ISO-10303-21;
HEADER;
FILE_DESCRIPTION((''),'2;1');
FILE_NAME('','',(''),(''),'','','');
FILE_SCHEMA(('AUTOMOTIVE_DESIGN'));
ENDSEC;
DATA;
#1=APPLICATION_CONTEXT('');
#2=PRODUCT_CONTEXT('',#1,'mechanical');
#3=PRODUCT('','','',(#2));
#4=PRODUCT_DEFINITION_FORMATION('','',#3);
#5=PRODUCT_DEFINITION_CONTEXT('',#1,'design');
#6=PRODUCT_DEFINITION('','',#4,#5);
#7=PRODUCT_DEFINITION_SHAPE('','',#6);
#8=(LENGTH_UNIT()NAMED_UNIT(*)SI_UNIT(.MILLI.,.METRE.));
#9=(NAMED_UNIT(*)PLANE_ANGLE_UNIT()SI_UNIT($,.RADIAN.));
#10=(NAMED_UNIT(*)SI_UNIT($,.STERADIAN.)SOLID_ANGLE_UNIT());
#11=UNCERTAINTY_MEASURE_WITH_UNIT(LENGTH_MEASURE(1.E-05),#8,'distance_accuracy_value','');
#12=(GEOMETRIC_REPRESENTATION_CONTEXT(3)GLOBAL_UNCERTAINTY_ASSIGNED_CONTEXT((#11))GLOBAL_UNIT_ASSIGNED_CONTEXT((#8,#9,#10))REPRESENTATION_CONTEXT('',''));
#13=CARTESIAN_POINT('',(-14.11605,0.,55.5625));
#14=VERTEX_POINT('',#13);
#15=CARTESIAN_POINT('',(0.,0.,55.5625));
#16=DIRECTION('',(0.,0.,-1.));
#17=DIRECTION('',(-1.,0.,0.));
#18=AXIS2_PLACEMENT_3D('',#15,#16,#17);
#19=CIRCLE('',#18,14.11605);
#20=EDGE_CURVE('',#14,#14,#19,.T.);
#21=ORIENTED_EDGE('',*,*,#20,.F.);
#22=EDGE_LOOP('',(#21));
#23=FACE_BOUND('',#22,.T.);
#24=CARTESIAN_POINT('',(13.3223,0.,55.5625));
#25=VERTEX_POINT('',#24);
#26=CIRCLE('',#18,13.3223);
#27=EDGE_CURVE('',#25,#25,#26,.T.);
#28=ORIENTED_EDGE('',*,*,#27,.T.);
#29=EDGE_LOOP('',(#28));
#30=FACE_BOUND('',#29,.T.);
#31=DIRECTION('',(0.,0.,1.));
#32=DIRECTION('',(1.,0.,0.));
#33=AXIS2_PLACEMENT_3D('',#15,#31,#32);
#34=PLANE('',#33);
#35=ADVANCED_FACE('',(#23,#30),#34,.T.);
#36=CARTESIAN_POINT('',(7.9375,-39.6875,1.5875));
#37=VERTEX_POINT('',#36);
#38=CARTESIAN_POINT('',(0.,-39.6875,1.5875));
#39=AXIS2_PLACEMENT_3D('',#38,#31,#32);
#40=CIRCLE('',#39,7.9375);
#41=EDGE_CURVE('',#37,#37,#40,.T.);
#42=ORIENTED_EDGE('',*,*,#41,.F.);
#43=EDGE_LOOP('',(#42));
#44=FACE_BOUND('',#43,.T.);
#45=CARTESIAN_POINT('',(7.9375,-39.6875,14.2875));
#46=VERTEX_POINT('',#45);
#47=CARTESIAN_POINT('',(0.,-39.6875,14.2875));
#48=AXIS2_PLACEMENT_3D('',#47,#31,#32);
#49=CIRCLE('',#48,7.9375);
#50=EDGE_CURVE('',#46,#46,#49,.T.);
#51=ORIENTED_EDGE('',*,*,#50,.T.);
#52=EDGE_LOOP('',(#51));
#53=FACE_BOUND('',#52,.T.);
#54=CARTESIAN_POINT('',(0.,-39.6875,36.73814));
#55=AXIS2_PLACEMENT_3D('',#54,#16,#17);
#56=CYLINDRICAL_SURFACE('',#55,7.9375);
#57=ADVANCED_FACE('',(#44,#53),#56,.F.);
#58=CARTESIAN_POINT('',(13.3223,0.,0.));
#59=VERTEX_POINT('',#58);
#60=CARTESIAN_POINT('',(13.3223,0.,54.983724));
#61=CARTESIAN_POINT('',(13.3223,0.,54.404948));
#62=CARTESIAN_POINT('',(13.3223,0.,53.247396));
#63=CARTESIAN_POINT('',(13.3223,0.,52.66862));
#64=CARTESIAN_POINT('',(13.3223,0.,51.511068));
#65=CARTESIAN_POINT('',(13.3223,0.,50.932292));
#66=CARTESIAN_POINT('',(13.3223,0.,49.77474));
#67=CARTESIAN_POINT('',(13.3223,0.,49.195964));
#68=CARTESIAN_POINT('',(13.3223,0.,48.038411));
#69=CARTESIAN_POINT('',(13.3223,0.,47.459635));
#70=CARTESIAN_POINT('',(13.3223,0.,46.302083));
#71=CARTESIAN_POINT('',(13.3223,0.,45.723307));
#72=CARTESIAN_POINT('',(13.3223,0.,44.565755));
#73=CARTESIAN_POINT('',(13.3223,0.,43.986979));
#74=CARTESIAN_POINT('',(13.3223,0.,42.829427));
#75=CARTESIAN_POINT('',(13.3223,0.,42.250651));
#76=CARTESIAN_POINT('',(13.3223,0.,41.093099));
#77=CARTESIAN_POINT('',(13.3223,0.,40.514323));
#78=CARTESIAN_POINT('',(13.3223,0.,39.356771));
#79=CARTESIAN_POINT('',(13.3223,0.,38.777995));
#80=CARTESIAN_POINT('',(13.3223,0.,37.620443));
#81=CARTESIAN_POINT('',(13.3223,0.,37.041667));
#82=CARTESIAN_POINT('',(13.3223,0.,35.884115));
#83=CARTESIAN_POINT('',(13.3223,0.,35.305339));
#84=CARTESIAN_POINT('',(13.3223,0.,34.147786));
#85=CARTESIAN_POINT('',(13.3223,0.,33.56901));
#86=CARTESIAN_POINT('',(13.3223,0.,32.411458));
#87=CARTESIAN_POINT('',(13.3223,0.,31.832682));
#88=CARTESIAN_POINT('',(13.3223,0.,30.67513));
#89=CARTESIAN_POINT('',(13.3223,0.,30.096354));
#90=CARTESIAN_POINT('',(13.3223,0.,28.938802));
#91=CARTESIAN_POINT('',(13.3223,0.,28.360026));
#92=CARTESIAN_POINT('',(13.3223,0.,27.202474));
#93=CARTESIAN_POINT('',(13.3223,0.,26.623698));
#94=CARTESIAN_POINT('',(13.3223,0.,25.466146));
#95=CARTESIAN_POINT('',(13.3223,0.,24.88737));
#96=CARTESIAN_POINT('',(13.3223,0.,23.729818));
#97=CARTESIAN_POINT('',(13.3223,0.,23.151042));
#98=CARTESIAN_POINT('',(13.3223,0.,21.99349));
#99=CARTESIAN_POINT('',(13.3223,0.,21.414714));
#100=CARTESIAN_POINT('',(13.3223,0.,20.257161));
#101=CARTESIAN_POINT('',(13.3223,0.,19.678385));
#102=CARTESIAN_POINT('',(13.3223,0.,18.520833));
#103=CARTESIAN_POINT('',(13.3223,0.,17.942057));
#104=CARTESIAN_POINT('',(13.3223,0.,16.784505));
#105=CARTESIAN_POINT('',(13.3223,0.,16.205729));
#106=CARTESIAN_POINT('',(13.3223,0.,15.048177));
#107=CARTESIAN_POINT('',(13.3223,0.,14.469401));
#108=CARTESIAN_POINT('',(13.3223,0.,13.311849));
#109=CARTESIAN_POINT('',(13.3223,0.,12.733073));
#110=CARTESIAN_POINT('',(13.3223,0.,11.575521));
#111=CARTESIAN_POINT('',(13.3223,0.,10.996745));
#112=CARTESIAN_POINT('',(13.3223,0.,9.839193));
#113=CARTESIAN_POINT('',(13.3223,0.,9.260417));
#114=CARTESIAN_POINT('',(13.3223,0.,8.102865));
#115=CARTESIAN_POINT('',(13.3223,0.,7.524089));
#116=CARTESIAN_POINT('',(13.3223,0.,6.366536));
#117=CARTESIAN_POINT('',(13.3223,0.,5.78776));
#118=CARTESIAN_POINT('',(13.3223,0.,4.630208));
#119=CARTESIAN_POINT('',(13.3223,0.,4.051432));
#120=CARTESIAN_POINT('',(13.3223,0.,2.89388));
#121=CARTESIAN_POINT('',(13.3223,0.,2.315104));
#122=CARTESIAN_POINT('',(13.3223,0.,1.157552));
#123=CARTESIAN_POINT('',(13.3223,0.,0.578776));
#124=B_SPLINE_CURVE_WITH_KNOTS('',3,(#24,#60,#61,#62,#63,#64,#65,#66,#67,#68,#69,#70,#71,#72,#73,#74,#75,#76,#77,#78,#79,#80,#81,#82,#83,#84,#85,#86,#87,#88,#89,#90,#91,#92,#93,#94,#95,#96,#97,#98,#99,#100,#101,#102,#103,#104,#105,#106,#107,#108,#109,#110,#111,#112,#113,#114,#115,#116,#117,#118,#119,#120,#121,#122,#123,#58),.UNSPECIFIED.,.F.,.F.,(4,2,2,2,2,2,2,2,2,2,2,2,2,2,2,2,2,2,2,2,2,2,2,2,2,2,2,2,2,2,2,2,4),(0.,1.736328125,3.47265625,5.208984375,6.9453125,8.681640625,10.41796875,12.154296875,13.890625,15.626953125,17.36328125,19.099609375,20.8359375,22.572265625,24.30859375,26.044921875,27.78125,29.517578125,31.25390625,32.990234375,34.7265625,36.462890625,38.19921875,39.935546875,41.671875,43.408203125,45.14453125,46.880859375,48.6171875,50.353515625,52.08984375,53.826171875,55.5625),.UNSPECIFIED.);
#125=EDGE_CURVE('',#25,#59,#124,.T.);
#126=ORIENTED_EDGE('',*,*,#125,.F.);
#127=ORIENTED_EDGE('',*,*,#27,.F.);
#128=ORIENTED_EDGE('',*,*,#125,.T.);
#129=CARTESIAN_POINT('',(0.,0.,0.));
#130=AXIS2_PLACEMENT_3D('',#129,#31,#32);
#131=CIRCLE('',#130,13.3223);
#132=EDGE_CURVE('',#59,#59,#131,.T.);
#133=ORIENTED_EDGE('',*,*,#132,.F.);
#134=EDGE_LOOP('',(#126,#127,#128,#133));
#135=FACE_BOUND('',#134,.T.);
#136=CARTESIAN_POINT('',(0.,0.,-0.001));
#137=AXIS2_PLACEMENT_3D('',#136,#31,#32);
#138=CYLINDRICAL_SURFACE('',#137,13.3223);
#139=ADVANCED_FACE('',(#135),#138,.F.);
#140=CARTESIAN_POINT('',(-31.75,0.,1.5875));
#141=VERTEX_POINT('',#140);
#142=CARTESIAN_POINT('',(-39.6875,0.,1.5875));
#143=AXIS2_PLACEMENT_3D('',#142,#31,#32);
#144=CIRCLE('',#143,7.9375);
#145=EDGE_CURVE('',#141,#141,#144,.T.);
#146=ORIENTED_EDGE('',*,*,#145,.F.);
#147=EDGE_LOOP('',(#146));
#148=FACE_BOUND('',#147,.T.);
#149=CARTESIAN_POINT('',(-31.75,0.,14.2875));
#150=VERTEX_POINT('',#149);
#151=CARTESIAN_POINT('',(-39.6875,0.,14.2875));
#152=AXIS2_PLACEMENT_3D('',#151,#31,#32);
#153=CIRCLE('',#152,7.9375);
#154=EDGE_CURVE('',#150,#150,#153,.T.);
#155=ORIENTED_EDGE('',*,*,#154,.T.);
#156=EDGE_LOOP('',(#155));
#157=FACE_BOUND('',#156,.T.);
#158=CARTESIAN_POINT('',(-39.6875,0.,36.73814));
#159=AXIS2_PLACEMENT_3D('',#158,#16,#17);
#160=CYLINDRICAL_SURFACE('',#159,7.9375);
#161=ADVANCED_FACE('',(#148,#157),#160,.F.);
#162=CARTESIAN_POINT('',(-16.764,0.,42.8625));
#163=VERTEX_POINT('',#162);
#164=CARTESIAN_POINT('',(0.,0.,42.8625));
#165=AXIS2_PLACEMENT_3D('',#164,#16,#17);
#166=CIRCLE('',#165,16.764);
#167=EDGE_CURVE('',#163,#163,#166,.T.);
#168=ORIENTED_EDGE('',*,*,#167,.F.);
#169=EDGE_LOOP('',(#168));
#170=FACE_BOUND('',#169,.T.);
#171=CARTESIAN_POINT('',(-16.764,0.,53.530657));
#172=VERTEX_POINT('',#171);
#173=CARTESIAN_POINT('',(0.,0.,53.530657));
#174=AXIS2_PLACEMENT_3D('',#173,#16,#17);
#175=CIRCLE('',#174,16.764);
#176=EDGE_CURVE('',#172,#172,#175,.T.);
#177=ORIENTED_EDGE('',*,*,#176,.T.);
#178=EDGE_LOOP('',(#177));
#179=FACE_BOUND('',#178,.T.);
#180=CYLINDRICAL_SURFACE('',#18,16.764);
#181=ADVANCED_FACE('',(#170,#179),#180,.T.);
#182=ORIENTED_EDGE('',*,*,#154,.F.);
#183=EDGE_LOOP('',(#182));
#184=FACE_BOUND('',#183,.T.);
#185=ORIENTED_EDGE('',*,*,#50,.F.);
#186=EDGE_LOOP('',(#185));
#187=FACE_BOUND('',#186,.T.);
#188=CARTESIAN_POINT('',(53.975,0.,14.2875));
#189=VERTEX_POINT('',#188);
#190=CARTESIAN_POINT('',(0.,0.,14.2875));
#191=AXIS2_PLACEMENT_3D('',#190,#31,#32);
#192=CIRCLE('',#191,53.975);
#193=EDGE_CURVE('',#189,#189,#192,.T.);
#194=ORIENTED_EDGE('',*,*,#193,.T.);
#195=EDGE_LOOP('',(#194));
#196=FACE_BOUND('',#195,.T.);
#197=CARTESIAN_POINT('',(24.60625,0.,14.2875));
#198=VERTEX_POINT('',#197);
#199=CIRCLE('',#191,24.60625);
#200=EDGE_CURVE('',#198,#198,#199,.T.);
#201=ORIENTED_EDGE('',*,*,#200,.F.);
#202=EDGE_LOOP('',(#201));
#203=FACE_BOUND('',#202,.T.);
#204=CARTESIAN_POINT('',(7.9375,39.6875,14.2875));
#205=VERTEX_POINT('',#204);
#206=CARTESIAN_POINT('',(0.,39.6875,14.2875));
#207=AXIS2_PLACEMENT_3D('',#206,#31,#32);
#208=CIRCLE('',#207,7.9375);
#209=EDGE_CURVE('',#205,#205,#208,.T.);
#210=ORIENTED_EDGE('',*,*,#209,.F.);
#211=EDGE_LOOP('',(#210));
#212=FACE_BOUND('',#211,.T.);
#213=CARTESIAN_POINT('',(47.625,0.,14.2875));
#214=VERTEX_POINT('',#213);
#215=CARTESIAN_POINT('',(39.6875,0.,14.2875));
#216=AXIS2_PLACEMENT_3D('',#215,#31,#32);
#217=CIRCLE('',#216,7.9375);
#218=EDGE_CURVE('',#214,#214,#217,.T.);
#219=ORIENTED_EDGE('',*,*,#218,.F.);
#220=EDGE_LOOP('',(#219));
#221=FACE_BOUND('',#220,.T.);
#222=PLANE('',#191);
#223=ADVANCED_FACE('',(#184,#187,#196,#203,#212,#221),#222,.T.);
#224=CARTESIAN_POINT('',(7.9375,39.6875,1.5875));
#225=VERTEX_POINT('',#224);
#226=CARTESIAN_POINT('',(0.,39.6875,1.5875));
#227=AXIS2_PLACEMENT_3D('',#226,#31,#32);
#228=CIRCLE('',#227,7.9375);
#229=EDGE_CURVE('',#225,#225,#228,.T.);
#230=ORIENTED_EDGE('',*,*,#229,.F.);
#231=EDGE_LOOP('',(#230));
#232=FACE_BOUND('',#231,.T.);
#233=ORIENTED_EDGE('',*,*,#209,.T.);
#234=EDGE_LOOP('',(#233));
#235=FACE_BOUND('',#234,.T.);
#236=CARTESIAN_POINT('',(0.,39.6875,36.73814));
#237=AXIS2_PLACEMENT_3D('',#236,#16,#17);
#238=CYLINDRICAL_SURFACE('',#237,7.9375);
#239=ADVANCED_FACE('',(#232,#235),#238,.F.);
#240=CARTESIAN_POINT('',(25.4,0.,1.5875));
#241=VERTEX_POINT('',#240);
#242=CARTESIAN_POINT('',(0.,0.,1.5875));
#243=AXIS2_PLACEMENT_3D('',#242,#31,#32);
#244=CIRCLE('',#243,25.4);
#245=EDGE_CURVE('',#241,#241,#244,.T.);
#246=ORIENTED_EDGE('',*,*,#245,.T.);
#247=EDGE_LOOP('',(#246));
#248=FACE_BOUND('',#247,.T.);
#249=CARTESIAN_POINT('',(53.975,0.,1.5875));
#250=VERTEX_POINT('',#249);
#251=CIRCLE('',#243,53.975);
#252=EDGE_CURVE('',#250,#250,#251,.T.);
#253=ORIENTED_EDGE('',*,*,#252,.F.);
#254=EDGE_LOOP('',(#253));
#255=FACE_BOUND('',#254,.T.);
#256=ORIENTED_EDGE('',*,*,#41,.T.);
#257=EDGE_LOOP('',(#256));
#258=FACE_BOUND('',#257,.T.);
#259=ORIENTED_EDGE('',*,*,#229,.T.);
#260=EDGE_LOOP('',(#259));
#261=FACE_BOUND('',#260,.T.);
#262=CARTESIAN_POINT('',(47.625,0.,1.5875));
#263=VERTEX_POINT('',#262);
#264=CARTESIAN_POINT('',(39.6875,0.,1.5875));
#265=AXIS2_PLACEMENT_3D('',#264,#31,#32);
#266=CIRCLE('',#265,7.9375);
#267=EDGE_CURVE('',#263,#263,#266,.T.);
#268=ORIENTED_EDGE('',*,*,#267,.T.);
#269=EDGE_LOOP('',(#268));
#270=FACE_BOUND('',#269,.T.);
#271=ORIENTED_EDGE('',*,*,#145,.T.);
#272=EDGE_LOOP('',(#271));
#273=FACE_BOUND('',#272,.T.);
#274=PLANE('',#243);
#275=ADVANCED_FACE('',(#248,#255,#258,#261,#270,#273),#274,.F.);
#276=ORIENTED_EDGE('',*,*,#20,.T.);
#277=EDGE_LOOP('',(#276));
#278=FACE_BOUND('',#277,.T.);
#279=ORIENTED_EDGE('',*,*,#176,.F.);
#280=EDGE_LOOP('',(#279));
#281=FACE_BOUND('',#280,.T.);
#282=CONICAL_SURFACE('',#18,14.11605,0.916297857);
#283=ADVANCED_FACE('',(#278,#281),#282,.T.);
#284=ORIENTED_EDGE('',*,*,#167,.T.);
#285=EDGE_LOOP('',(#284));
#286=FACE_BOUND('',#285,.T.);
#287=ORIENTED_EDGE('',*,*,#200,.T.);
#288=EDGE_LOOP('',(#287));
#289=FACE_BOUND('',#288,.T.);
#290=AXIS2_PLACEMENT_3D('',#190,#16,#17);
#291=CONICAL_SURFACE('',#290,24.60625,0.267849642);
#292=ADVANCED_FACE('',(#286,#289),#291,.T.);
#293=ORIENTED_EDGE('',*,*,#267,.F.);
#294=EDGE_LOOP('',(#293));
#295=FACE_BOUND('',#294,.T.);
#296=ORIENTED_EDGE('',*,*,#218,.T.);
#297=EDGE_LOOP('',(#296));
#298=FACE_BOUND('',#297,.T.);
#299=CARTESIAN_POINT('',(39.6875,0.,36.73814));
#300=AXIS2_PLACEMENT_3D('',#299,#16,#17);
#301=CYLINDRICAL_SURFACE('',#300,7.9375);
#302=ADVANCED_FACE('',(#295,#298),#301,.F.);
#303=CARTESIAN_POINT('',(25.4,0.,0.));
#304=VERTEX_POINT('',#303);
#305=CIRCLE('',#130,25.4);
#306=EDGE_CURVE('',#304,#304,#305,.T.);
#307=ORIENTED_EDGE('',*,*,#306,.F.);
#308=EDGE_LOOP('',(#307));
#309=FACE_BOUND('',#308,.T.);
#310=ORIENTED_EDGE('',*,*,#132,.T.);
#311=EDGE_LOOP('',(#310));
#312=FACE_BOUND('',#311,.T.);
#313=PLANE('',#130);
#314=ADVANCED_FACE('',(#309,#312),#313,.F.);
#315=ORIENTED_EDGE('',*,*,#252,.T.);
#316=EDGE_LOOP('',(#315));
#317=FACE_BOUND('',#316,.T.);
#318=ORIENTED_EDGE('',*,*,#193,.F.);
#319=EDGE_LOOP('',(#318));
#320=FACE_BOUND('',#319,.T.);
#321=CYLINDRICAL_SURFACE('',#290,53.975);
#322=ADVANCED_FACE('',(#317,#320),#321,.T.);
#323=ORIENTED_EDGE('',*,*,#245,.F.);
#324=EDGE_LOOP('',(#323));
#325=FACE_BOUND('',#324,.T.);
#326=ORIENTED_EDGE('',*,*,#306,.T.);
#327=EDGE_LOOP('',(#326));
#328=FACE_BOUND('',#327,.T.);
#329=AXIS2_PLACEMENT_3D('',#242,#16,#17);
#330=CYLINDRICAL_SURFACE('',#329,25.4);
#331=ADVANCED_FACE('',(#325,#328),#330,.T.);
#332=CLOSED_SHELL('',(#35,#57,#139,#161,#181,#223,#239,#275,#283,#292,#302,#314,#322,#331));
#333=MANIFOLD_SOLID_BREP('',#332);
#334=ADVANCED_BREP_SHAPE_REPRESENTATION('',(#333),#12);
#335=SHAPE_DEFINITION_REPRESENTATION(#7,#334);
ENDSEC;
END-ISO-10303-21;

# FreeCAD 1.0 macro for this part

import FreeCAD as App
import Part
import Sketcher
Q = App.Units.Quantity

doc = App.newDocument("Part")
body = doc.addObject("PartDesign::Body", "Body")

sketch1 = body.newObject("Sketcher::SketchObject", "Sketch")
sketch1.AttachmentSupport = (doc.getObject("XY_Plane"), [""])
sketch1.MapMode = "FlatFace"
sketch1.addGeometry(Part.Circle(App.Vector(0, 0, 0), App.Vector(0, 0, 1), 25.4), False)
sketch1.addConstraint(Sketcher.Constraint("Coincident", 0, 3, -1, 1))
sketch1.addConstraint(Sketcher.Constraint("Diameter", 0, Q("2 in")))
pad1 = body.newObject("PartDesign::Pad", "Pad")
pad1.Profile = sketch1
pad1.Length = Q("0.0625 in")

sketch2 = body.newObject("Sketcher::SketchObject", "Sketch001")
sketch2.AttachmentSupport = (doc.getObject("XY_Plane"), [""])
sketch2.MapMode = "FlatFace"
sketch2.AttachmentOffset = App.Placement(App.Vector(0, 0, 0.0625 * 25.4), App.Rotation())
sketch2.addGeometry(Part.Circle(App.Vector(0, 0, 0), App.Vector(0, 0, 1), 53.975), False)
sketch2.addConstraint(Sketcher.Constraint("Coincident", 0, 3, -1, 1))
sketch2.addConstraint(Sketcher.Constraint("Diameter", 0, Q("4.25 in")))
pad2 = body.newObject("PartDesign::Pad", "Pad001")
pad2.Profile = sketch2
pad2.Length = Q("0.5 in")

sketch3 = body.newObject("Sketcher::SketchObject", "Sketch002")
sketch3.AttachmentSupport = (doc.getObject("XY_Plane"), [""])
sketch3.MapMode = "FlatFace"
sketch3.AttachmentOffset = App.Placement(App.Vector(0, 0, 0.5625 * 25.4), App.Rotation())
sketch3.addGeometry(Part.Circle(App.Vector(0, 0, 0), App.Vector(0, 0, 1), 16.764), False)
sketch3.addConstraint(Sketcher.Constraint("Coincident", 0, 3, -1, 1))
sketch3.addConstraint(Sketcher.Constraint("Diameter", 0, Q("1.32 in")))
pad3 = body.newObject("PartDesign::Pad", "Pad002")
pad3.Profile = sketch3
pad3.Length = Q("1.625 in")

sketch4 = body.newObject("Sketcher::SketchObject", "Sketch003")
sketch4.AttachmentSupport = (doc.getObject("YZ_Plane"), [""])
sketch4.MapMode = "FlatFace"
sketch4.addGeometry(Part.LineSegment(App.Vector(24.60625, 14.2875, 0), App.Vector(16.764, 42.8625, 0)), False)
sketch4.addGeometry(Part.LineSegment(App.Vector(16.764, 42.8625, 0), App.Vector(16.764, 14.2875, 0)), False)
sketch4.addGeometry(Part.LineSegment(App.Vector(16.764, 14.2875, 0), App.Vector(24.60625, 14.2875, 0)), False)
sketch4.addConstraint(Sketcher.Constraint("Coincident", 0, 2, 1, 1))
sketch4.addConstraint(Sketcher.Constraint("Coincident", 1, 2, 2, 1))
sketch4.addConstraint(Sketcher.Constraint("Coincident", 2, 2, 0, 1))
sketch4.addConstraint(Sketcher.Constraint("Vertical", 1))
sketch4.addConstraint(Sketcher.Constraint("Horizontal", 2))
sketch4.addConstraint(Sketcher.Constraint("DistanceY", 1, 2, 1, 1, Q("1.125 in")))
sketch4.addConstraint(Sketcher.Constraint("DistanceX", -1, 1, 0, 2, Q("0.66 in")))
sketch4.addConstraint(Sketcher.Constraint("DistanceY", -1, 1, 0, 2, Q("1.6875 in")))
sketch4.addConstraint(Sketcher.Constraint("DistanceX", -1, 1, 2, 2, Q("0.96875 in")))
revolution = body.newObject("PartDesign::Revolution", "Revolution")
revolution.Profile = sketch4
revolution.ReferenceAxis = (sketch4, ["V_Axis"])
revolution.Angle = 360

sketch5 = body.newObject("Sketcher::SketchObject", "Sketch004")
sketch5.AttachmentSupport = (doc.getObject("XY_Plane"), [""])
sketch5.MapMode = "FlatFace"
sketch5.AttachmentOffset = App.Placement(App.Vector(0, 0, 0.0625 * 25.4), App.Rotation())
sketch5.addGeometry(Part.Circle(App.Vector(0, 39.6875, 0), App.Vector(0, 0, 1), 7.9375), False)
sketch5.addConstraint(Sketcher.Constraint("PointOnObject", 0, 3, -2))
sketch5.addConstraint(Sketcher.Constraint("Diameter", 0, Q("0.625 in")))
sketch5.addConstraint(Sketcher.Constraint("DistanceY", -1, 1, 0, 3, Q("1.5625 in")))
pocket1 = body.newObject("PartDesign::Pocket", "Pocket")
pocket1.Profile = sketch5
pocket1.Length = Q("0.5 in")
pocket1.Reversed = True
doc.recompute()

polarpattern = body.newObject("PartDesign::PolarPattern", "PolarPattern")
polarpattern.Originals = [pocket1]
polarpattern.Axis = (doc.getObject("Z_Axis"), [""])
polarpattern.Angle = 360
polarpattern.Occurrences = 4
body.Tip = polarpattern

sketch6 = body.newObject("Sketcher::SketchObject", "Sketch005")
sketch6.AttachmentSupport = (doc.getObject("XY_Plane"), [""])
sketch6.MapMode = "FlatFace"
sketch6.AttachmentOffset = App.Placement(App.Vector(0, 0, 2.1875 * 25.4), App.Rotation())
sketch6.addGeometry(Part.Circle(App.Vector(0, 0, 0), App.Vector(0, 0, 1), 13.3223), False)
sketch6.addConstraint(Sketcher.Constraint("Coincident", 0, 3, -1, 1))
sketch6.addConstraint(Sketcher.Constraint("Diameter", 0, Q("1.049 in")))
pocket2 = body.newObject("PartDesign::Pocket", "Pocket001")
pocket2.Profile = sketch6
pocket2.Type = "UpToFirst"

sketch7 = body.newObject("Sketcher::SketchObject", "Sketch006")
sketch7.AttachmentSupport = (doc.getObject("YZ_Plane"), [""])
sketch7.MapMode = "FlatFace"
sketch7.addGeometry(Part.LineSegment(App.Vector(16.764, 53.530657, 0), App.Vector(16.764, 55.5625, 0)), False)
sketch7.addGeometry(Part.LineSegment(App.Vector(16.764, 55.5625, 0), App.Vector(14.11605, 55.5625, 0)), False)
sketch7.addGeometry(Part.LineSegment(App.Vector(14.11605, 55.5625, 0), App.Vector(16.764, 53.530657, 0)), False)
sketch7.addConstraint(Sketcher.Constraint("Coincident", 0, 2, 1, 1))
sketch7.addConstraint(Sketcher.Constraint("Coincident", 1, 2, 2, 1))
sketch7.addConstraint(Sketcher.Constraint("Coincident", 2, 2, 0, 1))
sketch7.addConstraint(Sketcher.Constraint("Vertical", 0))
sketch7.addConstraint(Sketcher.Constraint("Horizontal", 1))
sketch7.addConstraint(Sketcher.Constraint("Angle", 2, Q("-37.5 deg")))
sketch7.addConstraint(Sketcher.Constraint("DistanceX", -1, 1, 0, 2, Q("0.66 in")))
sketch7.addConstraint(Sketcher.Constraint("DistanceY", -1, 1, 0, 2, Q("2.1875 in")))
sketch7.addConstraint(Sketcher.Constraint("DistanceX", 1, 2, 1, 1, 2.64795))
groove = body.newObject("PartDesign::Groove", "Groove")
groove.Profile = sketch7
groove.ReferenceAxis = (sketch7, ["V_Axis"])
groove.Angle = 360

doc.recompute()
